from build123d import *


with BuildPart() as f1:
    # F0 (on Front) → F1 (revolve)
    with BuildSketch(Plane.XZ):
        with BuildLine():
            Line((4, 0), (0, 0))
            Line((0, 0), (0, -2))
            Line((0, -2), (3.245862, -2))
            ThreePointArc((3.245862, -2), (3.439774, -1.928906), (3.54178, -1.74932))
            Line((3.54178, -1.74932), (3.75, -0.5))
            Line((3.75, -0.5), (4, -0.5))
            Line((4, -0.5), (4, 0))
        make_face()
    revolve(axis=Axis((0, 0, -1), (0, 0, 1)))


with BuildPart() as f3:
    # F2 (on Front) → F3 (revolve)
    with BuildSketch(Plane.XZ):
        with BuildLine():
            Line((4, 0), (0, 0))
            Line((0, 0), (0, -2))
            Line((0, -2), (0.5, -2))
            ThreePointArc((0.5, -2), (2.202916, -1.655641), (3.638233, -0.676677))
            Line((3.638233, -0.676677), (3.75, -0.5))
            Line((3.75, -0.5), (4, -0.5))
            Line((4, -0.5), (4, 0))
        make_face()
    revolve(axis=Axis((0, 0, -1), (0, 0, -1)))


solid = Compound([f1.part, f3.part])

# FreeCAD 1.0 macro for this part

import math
import FreeCAD as App
import Part
import Sketcher

V = App.Vector

doc = App.newDocument("Part")
body = doc.addObject("PartDesign::Body", "Body")

# Sketch on XZ plane
sketch1 = body.newObject("Sketcher::SketchObject", "Sketch")
sketch1.AttachmentSupport = (doc.getObject("XZ_Plane"), [""])
sketch1.MapMode = "FlatFace"
sketch1.addGeometry([
    Part.LineSegment(V(4, 0, 0), V(0, 0, 0)),  # 0
    Part.LineSegment(V(0, 0, 0), V(0, -2, 0)),  # 1
    Part.LineSegment(V(0, -2, 0), V(3.25, -2, 0)),  # 2
    Part.ArcOfCircle(Part.Circle(V(3.25, -1.7, 0), V(0, 0, 1), 0.3), math.radians(-90), math.radians(-9)),  # 3
    Part.LineSegment(V(3.54, -1.75, 0), V(3.75, -0.5, 0)),  # 4
    Part.LineSegment(V(3.75, -0.5, 0), V(4, -0.5, 0)),  # 5
    Part.LineSegment(V(4, -0.5, 0), V(4, 0, 0)),  # 6
], False)
sketch1.addConstraint([
    Sketcher.Constraint("Coincident", 0, 2, 1, 1),
    Sketcher.Constraint("Coincident", 1, 2, 2, 1),
    Sketcher.Constraint("Coincident", 2, 2, 3, 1),
    Sketcher.Constraint("Coincident", 3, 2, 4, 1),
    Sketcher.Constraint("Coincident", 4, 2, 5, 1),
    Sketcher.Constraint("Coincident", 5, 2, 6, 1),
    Sketcher.Constraint("Coincident", 6, 2, 0, 1),
    Sketcher.Constraint("Horizontal", 0),
    Sketcher.Constraint("Vertical", 1),
    Sketcher.Constraint("Horizontal", 2),
    Sketcher.Constraint("Horizontal", 5),
    Sketcher.Constraint("Vertical", 6),
    Sketcher.Constraint("Coincident", 0, 2, -1, 1),
    Sketcher.Constraint("Vertical", 3, 3, 2, 2),
    Sketcher.Constraint("Radius", 3, 0.300001),
    Sketcher.Constraint("DistanceX", 0, 2, 0, 1, 4.0),
    Sketcher.Constraint("DistanceY", 1, 2, 1, 1, 2.0),
    Sketcher.Constraint("DistanceY", 6, 1, 6, 2, 0.5),
    Sketcher.Constraint("DistanceX", 5, 1, 5, 2, 0.25),
    Sketcher.Constraint("DistanceX", 2, 1, 2, 2, 3.245862),
    Sketcher.Constraint("DistanceX", -1, 1, 3, 2, 3.54178),
])
revolution = body.newObject("PartDesign::Revolution", "Revolution")
revolution.Profile = sketch1
revolution.ReferenceAxis = (sketch1, ["V_Axis"])
revolution.Angle = 360
body2 = doc.addObject("PartDesign::Body", "Body001")

# Sketch on XZ plane
sketch2 = body2.newObject("Sketcher::SketchObject", "Sketch001")
sketch2.AttachmentSupport = (doc.getObject("XZ_Plane001"), [""])
sketch2.MapMode = "FlatFace"
sketch2.addGeometry([
    Part.LineSegment(V(4, 0, 0), V(0, 0, 0)),  # 0
    Part.LineSegment(V(0, 0, 0), V(0, -2, 0)),  # 1
    Part.LineSegment(V(0, -2, 0), V(0.5, -2, 0)),  # 2
    Part.ArcOfCircle(Part.Circle(V(0.5, 2.38, 0), V(0, 0, 1), 4.38), math.radians(-90), math.radians(-44)),  # 3
    Part.LineSegment(V(3.64, -0.68, 0), V(3.75, -0.5, 0)),  # 4
    Part.LineSegment(V(3.75, -0.5, 0), V(4, -0.5, 0)),  # 5
    Part.LineSegment(V(4, -0.5, 0), V(4, 0, 0)),  # 6
], False)
sketch2.addConstraint([
    Sketcher.Constraint("Coincident", 0, 2, 1, 1),
    Sketcher.Constraint("Coincident", 1, 2, 2, 1),
    Sketcher.Constraint("Tangent", 2, 2, 3, 1),
    Sketcher.Constraint("Coincident", 3, 2, 4, 1),
    Sketcher.Constraint("Coincident", 4, 2, 5, 1),
    Sketcher.Constraint("Coincident", 5, 2, 6, 1),
    Sketcher.Constraint("Coincident", 6, 2, 0, 1),
    Sketcher.Constraint("Horizontal", 0),
    Sketcher.Constraint("Vertical", 1),
    Sketcher.Constraint("Horizontal", 2),
    Sketcher.Constraint("Horizontal", 5),
    Sketcher.Constraint("Vertical", 6),
    Sketcher.Constraint("Coincident", 0, 2, -1, 1),
    Sketcher.Constraint("Equal", 2, 6),
    Sketcher.Constraint("DistanceX", 0, 2, 0, 1, 4.0),
    Sketcher.Constraint("DistanceY", 1, 2, 1, 1, 2.0),
    Sketcher.Constraint("DistanceX", 2, 1, 2, 2, 0.5),
    Sketcher.Constraint("DistanceX", 5, 1, 5, 2, 0.25),
    Sketcher.Constraint("Radius", 3, 4.382788),
    Sketcher.Constraint("Distance", 4, 0.209061),
])
revolution2 = body2.newObject("PartDesign::Revolution", "Revolution001")
revolution2.Profile = sketch2
revolution2.ReferenceAxis = (sketch2, ["V_Axis"])
revolution2.Angle = 360

doc.recompute()
